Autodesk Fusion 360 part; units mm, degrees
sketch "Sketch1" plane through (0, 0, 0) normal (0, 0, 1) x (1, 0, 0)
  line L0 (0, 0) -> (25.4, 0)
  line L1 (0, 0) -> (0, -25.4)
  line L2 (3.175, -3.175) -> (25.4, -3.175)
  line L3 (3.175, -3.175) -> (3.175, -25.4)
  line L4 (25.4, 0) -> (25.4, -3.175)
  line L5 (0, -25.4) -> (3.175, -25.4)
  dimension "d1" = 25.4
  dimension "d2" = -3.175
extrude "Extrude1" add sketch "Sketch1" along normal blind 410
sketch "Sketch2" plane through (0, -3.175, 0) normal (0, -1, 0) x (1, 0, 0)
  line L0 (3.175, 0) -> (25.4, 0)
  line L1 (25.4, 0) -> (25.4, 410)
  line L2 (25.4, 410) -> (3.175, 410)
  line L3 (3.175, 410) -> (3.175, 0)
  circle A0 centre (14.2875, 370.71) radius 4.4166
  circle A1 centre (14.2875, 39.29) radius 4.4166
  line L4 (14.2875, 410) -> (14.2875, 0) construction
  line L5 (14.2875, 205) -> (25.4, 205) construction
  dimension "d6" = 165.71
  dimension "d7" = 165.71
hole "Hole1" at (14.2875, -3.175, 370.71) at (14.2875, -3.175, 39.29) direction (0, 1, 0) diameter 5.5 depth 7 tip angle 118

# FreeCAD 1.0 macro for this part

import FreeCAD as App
import Part
import Sketcher
Q = App.Units.Quantity


def add_polygon(sketch, points):
    """Adds a closed chain of lines whose ends are joined by coincident constraints."""
    first, n = sketch.GeometryCount, len(points)
    for a, b in zip(points, points[1:] + points[:1]):
        sketch.addGeometry(Part.LineSegment(App.Vector(*a, 0), App.Vector(*b, 0)), False)
    for i in range(n):
        sketch.addConstraint(Sketcher.Constraint("Coincident", first + i, 2, first + (i + 1) % n, 1))

doc = App.newDocument("Part")
params = doc.addObject("Spreadsheet::Sheet", "Params")
for row, (alias, value) in enumerate([
    ("sketch1_width", "1 in"),
    ("sketch1_width2", "0.125 in"),
    ("pad1_length", "410 mm"),
    ("hole_diameter", "5.5 mm"),
    ("hole_depth", "0.2755906 in"),
], start=1):
    params.set(f"A{row}", alias)
    params.set(f"B{row}", "=" + value)
    params.setAlias(f"B{row}", alias)

body = doc.addObject("PartDesign::Body", "Body")

# Sketch on XY plane
sketch1 = body.newObject("Sketcher::SketchObject", "Sketch")
sketch1.AttachmentSupport = (doc.getObject("XY_Plane"), [""])
sketch1.MapMode = "FlatFace"
add_polygon(sketch1, [(25.4, 0), (0, 0), (0, -25.4), (3.2, -25.4), (3.2, -3.2), (25.4, -3.2)])  # lines 0-5
sketch1.addConstraint([
    Sketcher.Constraint("Horizontal", 0),
    Sketcher.Constraint("Vertical", 1),
    Sketcher.Constraint("Horizontal", 2),
    Sketcher.Constraint("Vertical", 3),
    Sketcher.Constraint("Horizontal", 4),
    Sketcher.Constraint("Vertical", 5),
    Sketcher.Constraint("Coincident", 0, 2, -1, 1),
    Sketcher.Constraint("Equal", 0, 1),
    Sketcher.Constraint("Equal", 4, 3),
    Sketcher.Constraint("DistanceX", 0, 2, 0, 1, Q("1 in")),
    Sketcher.Constraint("DistanceX", 2, 1, 2, 2, Q("0.125 in")),
])
sketch1.setExpression("Constraints[15]", "Params.sketch1_width")
sketch1.setExpression("Constraints[16]", "Params.sketch1_width2")
pad1 = body.newObject("PartDesign::Pad", "Pad")
pad1.Profile = sketch1
pad1.setExpression("Length", "Params.pad1_length")

# Sketch on XZ plane
sketch2 = body.newObject("Sketcher::SketchObject", "Sketch001")
sketch2.AttachmentSupport = (doc.getObject("XZ_Plane"), [""])
sketch2.MapMode = "FlatFace"
sketch2.AttachmentOffset = App.Placement(App.Vector(0, 0, 0.125 * 25.4), App.Rotation())
sketch2.addGeometry([
    Part.Circle(App.Vector(14.3, 370.7, 0), App.Vector(0, 0, 1), 2.8),
    Part.Circle(App.Vector(14.3, 39.3, 0), App.Vector(0, 0, 1), 2.8),
], False)
sketch2.addConstraint([
    Sketcher.Constraint("Equal", 0, 1),
    Sketcher.Constraint("Vertical", 0, 3, 1, 3),
    Sketcher.Constraint("Diameter", 0, Q("5.5 mm")),
    Sketcher.Constraint("DistanceX", -1, 1, 0, 3, Q("0.5625 in")),
    Sketcher.Constraint("DistanceY", -1, 1, 0, 3, Q("370.71 mm")),
    Sketcher.Constraint("DistanceY", -1, 1, 1, 3, Q("39.29 mm")),
])
doc.recompute()
hole = body.newObject("PartDesign::Hole", "Hole")
hole.Profile = sketch2
hole.ThreadType = "None"
hole.setExpression("Diameter", "Params.hole_diameter")
hole.DepthType = "Dimension"
hole.setExpression("Depth", "Params.hole_depth")
hole.DrillPoint = "Angled"
hole.DrillPointAngle = 118

doc.recompute()
